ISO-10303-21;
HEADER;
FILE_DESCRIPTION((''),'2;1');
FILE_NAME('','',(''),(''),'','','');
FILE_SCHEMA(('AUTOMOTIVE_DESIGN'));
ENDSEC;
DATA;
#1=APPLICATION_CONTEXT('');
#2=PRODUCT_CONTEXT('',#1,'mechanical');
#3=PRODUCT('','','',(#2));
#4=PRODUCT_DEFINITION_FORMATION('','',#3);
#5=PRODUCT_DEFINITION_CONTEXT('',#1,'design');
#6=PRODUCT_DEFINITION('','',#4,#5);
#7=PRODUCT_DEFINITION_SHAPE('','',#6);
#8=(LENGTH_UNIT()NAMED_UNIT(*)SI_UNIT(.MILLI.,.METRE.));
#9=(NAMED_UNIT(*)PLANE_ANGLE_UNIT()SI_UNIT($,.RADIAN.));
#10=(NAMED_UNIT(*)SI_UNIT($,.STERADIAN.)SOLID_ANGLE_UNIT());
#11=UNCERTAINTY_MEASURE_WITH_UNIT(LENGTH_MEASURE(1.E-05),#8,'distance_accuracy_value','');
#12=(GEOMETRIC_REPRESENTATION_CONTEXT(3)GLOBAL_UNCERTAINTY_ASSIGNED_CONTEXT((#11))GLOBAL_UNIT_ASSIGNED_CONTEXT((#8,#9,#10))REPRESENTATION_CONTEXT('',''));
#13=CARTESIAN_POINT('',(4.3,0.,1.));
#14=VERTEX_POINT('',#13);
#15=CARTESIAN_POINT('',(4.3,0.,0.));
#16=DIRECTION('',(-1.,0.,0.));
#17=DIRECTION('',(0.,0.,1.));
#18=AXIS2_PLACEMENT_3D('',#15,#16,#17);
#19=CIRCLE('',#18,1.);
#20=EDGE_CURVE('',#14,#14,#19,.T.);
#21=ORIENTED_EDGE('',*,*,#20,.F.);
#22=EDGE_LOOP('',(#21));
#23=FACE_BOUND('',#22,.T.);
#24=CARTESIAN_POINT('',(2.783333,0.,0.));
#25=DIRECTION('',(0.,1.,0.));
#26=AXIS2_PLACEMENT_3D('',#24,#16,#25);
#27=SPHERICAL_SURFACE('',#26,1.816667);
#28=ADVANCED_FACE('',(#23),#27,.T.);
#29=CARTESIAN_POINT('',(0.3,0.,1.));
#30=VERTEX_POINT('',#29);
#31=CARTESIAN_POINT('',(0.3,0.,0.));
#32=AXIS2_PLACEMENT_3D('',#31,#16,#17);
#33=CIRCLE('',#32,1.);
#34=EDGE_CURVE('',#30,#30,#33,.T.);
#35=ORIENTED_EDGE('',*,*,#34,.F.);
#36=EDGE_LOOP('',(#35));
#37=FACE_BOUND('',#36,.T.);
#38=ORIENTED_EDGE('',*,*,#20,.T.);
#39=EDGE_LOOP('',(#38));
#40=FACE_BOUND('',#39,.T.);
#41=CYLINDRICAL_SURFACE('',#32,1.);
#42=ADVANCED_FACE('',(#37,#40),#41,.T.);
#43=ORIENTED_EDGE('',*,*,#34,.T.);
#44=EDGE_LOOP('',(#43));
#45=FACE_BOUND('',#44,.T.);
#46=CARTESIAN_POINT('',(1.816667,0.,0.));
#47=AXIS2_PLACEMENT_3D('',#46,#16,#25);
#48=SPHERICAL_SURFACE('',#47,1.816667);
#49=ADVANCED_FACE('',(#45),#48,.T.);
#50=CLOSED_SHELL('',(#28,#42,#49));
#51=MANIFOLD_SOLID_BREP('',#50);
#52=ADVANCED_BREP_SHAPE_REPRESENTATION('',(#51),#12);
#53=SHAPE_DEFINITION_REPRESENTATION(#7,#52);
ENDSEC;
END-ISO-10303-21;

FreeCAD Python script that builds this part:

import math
import FreeCAD as App
import Part
import Sketcher
from FreeCAD import Vector

doc = App.newDocument("Part")
body = doc.addObject("PartDesign::Body", "Body")

# Sketch on XY plane
sketch1 = body.newObject("Sketcher::SketchObject", "Sketch")
sketch1.AttachmentSupport = (doc.getObject("XY_Plane"), [""])
sketch1.MapMode = "FlatFace"
sketch1.addGeometry([
    Part.LineSegment(Vector(0, 0, 0), Vector(4.6, 0, 0)),
    Part.ArcOfCircle(Part.Circle(Vector(2.783333, 0, 0), Vector(0, 0, 1), 1.816667), math.radians(0), math.radians(33.398488)),
    Part.LineSegment(Vector(4.3, 1, 0), Vector(0.3, 1, 0)),
    Part.ArcOfCircle(Part.Circle(Vector(1.816667, 0, 0), Vector(0, 0, 1), 1.816667), math.radians(146.601512), math.radians(180)),
], False)
sketch1.addConstraint([
    Sketcher.Constraint("Coincident", 0, 2, 1, 1),
    Sketcher.Constraint("Coincident", 1, 2, 2, 1),
    Sketcher.Constraint("Coincident", 2, 2, 3, 1),
    Sketcher.Constraint("Coincident", 3, 2, 0, 1),
    Sketcher.Constraint("Horizontal", 0),
    Sketcher.Constraint("Horizontal", 2),
    Sketcher.Constraint("Coincident", 3, 2, -1, 1),
    Sketcher.Constraint("Equal", 1, 3),
    Sketcher.Constraint("PointOnObject", 1, 3, -1),
    Sketcher.Constraint("PointOnObject", 3, 3, -1),
    Sketcher.Constraint("DistanceX", 2, 2, 2, 1, 4.0),
    Sketcher.Constraint("DistanceX", 0, 1, 0, 2, 4.6),
    Sketcher.Constraint("DistanceY", -1, 1, 1, 2, 1.0),
])
revolution = body.newObject("PartDesign::Revolution", "Revolution")
revolution.Profile = sketch1
revolution.ReferenceAxis = (sketch1, ["H_Axis"])
revolution.Angle = 360

doc.recompute()
